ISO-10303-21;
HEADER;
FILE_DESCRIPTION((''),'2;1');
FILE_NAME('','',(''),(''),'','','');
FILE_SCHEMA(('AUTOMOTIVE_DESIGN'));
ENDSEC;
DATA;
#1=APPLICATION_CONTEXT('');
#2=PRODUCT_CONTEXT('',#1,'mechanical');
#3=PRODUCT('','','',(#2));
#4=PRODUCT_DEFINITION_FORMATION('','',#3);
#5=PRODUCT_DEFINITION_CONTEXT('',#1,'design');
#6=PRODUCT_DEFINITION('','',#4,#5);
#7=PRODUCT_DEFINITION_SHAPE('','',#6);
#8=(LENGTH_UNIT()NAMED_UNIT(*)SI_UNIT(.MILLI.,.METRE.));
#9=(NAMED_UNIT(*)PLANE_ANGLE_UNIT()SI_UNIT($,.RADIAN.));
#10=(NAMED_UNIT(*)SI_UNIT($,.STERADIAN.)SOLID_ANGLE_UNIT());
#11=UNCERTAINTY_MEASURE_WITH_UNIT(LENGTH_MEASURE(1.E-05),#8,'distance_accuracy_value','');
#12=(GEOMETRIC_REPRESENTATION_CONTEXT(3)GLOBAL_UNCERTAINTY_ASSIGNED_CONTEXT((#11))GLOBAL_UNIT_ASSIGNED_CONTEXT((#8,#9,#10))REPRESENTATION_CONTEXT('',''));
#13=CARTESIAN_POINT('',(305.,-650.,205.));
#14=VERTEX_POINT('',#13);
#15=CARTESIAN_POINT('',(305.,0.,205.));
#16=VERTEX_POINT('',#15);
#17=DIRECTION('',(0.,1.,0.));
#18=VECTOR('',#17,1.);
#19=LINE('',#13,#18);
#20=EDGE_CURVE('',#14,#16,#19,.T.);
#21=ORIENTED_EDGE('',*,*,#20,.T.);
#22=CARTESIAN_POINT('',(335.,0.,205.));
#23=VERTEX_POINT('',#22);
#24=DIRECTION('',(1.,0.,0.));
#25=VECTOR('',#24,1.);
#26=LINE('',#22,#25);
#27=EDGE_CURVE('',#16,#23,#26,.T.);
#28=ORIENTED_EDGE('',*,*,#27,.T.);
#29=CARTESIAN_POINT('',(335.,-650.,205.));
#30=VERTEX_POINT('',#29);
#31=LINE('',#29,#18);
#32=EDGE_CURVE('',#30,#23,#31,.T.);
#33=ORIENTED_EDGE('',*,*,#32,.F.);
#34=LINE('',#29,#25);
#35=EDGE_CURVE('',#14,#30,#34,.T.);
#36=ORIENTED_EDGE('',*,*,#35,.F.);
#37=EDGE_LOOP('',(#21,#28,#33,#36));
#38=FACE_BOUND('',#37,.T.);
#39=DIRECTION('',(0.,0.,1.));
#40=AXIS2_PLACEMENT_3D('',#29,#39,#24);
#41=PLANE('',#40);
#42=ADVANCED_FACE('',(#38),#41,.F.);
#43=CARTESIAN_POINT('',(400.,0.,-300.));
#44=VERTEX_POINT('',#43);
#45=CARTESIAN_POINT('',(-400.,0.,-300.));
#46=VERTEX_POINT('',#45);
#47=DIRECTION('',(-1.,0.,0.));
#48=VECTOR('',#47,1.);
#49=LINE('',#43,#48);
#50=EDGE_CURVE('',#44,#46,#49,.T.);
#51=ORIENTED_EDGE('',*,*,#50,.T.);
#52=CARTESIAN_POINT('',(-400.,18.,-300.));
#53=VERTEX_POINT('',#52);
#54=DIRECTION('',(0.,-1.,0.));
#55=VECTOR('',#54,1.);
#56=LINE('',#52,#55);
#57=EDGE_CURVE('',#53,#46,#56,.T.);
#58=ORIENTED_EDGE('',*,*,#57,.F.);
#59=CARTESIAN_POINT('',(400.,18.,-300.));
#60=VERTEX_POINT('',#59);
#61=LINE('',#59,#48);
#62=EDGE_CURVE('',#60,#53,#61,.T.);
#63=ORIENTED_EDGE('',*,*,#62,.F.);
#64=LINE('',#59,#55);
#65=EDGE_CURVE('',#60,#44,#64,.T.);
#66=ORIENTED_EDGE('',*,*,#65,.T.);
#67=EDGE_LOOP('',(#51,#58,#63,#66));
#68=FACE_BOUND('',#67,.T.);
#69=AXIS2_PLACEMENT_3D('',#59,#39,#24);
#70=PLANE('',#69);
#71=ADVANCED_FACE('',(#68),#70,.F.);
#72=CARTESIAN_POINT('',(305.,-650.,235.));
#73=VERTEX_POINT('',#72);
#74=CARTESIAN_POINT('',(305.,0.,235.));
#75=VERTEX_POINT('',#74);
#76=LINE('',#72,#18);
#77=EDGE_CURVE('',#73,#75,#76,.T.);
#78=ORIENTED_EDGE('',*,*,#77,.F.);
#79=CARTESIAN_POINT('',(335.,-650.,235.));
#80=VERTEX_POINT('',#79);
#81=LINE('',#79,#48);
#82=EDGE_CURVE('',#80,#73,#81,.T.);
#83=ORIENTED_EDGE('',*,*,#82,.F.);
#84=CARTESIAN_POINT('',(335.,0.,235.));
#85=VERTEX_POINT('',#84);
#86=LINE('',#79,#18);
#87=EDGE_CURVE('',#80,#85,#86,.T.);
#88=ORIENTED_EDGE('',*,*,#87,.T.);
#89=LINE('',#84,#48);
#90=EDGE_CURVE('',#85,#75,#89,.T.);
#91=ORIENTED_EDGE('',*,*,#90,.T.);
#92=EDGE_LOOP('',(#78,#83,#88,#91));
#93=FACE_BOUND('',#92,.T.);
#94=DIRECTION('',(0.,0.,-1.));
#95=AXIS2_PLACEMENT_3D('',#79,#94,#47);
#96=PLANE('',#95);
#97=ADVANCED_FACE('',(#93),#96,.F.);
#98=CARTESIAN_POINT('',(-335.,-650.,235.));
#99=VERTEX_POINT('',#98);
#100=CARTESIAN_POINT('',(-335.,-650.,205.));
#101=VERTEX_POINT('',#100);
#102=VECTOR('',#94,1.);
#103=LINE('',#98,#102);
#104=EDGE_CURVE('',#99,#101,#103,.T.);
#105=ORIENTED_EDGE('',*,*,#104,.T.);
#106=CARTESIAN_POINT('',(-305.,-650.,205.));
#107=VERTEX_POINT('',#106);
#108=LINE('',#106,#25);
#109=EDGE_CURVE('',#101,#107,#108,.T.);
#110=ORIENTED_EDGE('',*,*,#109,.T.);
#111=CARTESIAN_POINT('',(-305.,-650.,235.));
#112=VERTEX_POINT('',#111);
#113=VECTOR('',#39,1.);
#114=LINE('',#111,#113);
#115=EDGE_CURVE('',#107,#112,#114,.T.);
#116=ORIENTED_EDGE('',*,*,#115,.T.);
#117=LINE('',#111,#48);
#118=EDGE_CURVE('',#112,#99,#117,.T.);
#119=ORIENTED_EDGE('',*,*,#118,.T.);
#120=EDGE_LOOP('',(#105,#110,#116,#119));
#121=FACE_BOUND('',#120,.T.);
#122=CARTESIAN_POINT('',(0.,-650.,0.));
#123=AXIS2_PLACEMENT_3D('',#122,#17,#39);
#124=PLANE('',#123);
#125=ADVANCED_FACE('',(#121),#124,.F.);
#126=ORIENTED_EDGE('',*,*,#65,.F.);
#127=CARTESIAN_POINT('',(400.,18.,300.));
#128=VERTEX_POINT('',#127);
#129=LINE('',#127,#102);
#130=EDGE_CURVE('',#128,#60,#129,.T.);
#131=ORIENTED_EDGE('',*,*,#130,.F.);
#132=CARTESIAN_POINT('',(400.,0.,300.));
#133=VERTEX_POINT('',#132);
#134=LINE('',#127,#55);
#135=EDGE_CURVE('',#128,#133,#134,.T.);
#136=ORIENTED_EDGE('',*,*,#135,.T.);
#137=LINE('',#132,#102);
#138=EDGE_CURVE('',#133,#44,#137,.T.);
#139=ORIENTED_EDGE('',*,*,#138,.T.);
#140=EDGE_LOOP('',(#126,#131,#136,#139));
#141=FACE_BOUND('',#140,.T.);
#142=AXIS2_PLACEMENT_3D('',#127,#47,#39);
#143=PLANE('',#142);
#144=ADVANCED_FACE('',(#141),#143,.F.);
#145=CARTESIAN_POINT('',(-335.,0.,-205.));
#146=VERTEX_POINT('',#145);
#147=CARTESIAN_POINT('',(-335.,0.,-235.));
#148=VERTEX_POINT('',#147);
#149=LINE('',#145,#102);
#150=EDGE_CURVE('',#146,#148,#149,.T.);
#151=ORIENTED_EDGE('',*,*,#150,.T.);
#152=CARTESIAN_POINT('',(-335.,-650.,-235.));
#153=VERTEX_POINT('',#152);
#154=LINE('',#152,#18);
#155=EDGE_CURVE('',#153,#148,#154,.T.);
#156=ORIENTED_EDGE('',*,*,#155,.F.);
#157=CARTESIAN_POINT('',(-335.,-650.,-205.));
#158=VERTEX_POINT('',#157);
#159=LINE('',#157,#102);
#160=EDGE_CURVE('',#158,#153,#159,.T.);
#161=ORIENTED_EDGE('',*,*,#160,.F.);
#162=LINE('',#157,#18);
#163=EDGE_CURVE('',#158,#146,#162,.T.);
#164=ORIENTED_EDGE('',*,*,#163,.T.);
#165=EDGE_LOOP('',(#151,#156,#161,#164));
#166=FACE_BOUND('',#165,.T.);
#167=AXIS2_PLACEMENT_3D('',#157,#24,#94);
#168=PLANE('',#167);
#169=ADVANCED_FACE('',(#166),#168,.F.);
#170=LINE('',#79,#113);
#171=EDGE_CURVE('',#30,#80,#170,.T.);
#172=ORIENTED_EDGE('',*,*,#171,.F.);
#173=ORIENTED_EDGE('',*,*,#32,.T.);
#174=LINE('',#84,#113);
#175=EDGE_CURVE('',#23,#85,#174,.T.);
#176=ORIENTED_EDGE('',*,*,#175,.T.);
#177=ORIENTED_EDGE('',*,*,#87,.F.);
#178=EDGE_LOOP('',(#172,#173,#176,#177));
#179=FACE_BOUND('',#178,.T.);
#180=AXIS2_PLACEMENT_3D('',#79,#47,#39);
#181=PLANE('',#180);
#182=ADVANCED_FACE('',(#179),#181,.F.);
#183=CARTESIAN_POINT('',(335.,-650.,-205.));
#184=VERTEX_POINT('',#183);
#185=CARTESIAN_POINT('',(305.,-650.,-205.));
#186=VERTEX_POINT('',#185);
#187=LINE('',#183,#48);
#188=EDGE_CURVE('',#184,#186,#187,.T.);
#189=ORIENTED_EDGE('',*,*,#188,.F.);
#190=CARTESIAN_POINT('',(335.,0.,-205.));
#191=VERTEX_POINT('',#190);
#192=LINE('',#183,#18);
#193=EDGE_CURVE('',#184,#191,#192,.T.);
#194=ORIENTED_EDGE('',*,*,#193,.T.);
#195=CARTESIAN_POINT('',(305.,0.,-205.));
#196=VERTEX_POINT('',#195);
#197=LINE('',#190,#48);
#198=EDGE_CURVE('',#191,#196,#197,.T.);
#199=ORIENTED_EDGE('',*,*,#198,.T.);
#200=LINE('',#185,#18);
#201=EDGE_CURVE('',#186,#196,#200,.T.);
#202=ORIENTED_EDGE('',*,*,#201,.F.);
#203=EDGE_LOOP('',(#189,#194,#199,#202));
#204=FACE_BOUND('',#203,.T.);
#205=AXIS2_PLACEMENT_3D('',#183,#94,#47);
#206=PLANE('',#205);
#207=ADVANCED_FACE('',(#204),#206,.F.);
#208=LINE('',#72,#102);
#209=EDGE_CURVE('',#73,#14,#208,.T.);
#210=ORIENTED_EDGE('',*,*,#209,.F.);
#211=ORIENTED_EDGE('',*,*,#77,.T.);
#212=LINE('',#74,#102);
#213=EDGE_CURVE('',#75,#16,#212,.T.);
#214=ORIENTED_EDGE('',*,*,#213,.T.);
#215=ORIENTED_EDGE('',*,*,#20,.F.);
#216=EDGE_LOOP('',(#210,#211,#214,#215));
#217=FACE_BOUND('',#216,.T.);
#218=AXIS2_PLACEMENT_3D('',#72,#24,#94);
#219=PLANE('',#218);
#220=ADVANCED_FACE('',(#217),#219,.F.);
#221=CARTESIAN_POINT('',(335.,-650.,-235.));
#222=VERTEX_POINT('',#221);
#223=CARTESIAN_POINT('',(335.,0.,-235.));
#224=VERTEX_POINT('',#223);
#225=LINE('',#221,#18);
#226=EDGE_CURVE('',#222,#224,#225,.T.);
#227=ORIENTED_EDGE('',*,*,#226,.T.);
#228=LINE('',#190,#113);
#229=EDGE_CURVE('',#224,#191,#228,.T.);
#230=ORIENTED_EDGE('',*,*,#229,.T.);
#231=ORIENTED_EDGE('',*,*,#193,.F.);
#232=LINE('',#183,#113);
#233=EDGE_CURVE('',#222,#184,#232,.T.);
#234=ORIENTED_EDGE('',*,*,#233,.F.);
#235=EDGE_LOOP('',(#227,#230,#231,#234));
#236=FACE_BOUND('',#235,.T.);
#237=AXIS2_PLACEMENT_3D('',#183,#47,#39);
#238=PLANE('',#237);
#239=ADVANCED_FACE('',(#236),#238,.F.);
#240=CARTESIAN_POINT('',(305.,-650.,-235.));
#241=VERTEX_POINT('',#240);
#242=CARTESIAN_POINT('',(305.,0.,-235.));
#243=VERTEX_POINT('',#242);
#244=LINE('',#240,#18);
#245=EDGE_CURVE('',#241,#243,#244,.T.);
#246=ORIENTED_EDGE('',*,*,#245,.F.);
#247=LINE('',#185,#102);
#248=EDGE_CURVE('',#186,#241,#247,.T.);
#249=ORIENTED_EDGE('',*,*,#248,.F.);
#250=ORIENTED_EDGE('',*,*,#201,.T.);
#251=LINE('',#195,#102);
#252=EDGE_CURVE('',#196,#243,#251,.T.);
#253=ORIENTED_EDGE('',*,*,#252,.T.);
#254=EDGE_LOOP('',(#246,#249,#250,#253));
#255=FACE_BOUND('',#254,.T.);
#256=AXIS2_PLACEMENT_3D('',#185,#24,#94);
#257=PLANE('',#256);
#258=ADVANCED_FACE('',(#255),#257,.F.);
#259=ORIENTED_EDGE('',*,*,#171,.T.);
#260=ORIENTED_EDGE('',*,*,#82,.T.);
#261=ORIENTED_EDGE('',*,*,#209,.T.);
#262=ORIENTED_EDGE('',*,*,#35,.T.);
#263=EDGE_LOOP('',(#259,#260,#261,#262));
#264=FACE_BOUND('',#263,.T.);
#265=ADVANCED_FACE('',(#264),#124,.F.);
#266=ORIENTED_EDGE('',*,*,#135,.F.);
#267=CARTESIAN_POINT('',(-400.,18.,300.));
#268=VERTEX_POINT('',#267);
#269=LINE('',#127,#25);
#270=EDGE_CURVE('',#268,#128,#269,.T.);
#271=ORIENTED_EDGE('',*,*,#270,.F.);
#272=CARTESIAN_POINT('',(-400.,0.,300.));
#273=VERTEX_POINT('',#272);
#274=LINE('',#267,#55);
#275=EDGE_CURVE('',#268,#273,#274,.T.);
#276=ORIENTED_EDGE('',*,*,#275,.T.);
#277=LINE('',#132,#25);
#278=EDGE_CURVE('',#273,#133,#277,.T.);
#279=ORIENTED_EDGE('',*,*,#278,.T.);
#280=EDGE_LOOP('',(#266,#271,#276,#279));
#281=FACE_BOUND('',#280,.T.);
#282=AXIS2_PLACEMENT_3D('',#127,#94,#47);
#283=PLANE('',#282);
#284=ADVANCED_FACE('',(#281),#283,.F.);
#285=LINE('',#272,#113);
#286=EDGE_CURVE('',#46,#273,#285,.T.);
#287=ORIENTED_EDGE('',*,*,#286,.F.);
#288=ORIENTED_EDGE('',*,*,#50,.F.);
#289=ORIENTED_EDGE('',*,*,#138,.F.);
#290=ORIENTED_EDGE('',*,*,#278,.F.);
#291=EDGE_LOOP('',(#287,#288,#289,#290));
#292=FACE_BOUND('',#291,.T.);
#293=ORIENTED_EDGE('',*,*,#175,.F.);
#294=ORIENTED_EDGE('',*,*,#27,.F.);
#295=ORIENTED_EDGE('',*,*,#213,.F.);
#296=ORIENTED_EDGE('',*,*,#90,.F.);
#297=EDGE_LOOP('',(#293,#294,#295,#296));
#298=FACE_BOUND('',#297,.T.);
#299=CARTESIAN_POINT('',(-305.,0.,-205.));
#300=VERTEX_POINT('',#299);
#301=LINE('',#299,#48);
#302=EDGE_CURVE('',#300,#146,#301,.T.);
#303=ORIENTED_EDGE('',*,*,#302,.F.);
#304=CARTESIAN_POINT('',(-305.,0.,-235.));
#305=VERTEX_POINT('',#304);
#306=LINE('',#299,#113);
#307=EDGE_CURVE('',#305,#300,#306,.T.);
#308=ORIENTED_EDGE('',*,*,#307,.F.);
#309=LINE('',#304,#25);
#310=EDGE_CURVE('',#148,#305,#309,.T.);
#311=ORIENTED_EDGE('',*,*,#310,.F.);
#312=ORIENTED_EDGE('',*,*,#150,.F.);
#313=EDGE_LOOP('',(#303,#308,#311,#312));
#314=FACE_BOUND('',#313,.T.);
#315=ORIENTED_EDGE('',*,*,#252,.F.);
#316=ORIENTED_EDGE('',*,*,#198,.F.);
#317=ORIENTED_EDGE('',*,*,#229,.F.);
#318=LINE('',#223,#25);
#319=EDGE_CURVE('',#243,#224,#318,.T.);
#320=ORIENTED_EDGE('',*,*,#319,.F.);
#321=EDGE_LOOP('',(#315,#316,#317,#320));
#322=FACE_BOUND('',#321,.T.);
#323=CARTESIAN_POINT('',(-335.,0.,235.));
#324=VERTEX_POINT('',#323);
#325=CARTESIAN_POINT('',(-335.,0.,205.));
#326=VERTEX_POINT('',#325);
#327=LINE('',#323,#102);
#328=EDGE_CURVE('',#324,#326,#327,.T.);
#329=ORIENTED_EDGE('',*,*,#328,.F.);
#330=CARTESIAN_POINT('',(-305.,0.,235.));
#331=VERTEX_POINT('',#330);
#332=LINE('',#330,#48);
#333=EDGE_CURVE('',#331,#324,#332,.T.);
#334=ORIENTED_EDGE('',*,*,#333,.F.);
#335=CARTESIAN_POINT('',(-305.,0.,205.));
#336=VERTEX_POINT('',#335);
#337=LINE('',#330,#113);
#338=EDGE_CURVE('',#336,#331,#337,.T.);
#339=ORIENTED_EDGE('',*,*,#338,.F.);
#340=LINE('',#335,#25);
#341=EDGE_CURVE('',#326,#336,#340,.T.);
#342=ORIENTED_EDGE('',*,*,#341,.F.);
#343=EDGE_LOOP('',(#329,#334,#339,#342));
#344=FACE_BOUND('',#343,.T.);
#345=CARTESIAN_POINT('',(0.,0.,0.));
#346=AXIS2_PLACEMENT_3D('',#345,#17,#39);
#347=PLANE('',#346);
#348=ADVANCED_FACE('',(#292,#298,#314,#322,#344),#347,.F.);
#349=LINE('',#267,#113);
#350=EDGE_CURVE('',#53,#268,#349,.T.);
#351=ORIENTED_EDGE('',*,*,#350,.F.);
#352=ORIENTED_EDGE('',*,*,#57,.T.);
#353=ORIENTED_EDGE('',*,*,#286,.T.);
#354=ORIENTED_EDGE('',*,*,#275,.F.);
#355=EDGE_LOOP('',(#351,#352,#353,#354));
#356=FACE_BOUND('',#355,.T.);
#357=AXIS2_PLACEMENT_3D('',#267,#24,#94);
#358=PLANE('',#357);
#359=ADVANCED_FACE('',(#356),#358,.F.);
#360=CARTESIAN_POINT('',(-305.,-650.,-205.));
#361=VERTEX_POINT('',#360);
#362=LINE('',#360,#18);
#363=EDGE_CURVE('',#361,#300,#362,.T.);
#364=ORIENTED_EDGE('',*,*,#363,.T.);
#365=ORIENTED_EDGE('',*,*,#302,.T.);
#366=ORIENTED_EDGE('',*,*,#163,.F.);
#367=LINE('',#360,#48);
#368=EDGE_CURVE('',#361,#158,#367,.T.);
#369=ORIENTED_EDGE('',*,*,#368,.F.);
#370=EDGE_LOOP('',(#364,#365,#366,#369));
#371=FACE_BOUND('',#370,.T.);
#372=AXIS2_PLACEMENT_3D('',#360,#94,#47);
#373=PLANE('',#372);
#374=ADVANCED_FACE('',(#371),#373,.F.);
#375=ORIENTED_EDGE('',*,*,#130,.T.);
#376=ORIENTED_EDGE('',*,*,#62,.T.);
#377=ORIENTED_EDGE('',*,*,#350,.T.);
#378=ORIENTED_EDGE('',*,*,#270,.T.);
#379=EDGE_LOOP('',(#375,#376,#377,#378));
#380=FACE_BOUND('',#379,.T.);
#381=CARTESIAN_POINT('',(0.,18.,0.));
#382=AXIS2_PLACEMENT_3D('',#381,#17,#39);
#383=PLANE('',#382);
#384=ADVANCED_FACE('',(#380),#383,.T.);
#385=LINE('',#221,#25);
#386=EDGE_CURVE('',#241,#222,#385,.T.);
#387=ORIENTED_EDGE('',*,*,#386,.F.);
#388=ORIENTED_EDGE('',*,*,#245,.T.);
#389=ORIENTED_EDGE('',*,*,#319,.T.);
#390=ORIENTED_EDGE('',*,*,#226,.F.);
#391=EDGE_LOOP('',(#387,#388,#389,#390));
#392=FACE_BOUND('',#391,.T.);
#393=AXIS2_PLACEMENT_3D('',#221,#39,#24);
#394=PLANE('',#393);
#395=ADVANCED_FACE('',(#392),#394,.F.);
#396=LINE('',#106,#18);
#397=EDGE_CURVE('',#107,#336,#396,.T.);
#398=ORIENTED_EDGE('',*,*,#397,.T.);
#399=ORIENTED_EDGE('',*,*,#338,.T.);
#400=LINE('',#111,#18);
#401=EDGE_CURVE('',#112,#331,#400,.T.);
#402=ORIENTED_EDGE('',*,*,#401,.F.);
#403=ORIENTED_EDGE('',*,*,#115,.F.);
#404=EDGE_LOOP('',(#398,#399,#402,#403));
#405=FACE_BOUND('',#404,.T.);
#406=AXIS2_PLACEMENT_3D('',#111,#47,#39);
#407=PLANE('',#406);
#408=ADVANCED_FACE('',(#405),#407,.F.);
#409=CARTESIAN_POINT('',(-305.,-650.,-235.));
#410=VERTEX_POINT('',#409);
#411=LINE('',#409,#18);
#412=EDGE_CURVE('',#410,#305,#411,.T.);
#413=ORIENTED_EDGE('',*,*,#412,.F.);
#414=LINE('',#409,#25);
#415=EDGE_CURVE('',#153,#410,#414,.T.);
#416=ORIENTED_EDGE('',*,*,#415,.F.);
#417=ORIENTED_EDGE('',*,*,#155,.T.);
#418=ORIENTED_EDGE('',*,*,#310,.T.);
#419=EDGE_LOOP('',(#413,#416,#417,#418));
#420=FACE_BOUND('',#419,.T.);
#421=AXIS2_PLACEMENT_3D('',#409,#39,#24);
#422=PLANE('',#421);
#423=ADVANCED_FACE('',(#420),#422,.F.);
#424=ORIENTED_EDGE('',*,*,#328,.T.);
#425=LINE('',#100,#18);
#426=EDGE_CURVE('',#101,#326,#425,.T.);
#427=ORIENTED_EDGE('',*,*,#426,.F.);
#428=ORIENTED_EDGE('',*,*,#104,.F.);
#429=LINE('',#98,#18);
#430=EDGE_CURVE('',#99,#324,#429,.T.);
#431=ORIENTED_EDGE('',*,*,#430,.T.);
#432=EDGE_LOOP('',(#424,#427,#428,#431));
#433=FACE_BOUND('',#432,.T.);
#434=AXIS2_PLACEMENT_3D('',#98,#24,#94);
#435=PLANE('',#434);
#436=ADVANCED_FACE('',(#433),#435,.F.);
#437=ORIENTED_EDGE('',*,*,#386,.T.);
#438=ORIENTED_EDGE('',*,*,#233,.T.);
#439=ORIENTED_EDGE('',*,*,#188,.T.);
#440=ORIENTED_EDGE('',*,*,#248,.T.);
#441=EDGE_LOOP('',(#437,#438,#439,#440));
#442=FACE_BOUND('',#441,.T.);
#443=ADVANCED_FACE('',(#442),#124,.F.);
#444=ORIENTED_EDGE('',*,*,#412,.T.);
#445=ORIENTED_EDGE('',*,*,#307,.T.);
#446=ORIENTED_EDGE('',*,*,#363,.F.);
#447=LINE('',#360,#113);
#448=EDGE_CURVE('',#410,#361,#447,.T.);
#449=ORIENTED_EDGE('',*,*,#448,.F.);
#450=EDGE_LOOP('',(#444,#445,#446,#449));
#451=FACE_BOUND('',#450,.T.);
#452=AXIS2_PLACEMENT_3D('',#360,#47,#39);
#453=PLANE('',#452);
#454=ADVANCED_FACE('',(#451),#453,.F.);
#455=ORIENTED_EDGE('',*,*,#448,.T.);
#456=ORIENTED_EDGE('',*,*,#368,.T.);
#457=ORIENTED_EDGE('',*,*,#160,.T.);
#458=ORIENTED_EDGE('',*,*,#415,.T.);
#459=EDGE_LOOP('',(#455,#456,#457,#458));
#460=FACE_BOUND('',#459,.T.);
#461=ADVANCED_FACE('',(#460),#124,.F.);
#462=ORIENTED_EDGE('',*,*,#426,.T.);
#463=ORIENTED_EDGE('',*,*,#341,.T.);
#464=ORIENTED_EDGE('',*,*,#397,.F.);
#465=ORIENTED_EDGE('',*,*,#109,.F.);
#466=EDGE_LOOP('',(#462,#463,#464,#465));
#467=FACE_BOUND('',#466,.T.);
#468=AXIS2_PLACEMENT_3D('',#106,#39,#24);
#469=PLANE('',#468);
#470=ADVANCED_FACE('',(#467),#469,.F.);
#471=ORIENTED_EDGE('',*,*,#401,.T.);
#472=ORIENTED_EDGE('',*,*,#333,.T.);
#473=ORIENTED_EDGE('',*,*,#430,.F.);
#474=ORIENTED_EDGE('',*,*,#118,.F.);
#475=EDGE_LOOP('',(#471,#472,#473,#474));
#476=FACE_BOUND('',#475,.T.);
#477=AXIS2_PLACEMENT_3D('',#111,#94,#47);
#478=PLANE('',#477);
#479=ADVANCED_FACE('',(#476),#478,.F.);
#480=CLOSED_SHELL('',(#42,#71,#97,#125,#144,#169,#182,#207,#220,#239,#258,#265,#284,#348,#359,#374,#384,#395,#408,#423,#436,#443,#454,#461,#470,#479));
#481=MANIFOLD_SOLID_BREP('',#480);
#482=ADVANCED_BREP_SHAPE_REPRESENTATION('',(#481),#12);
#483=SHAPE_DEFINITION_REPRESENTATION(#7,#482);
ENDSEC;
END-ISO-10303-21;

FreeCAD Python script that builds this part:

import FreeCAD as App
import Part
import Sketcher
from FreeCAD import Vector
Q = App.Units.Quantity


def add_polygon(sketch, points):
    """Adds a closed chain of lines whose ends are joined by coincident constraints."""
    first, n = sketch.GeometryCount, len(points)
    for a, b in zip(points, points[1:] + points[:1]):
        sketch.addGeometry(Part.LineSegment(App.Vector(*a, 0), App.Vector(*b, 0)), False)
    for i in range(n):
        sketch.addConstraint(Sketcher.Constraint("Coincident", first + i, 2, first + (i + 1) % n, 1))

doc = App.newDocument("Part")
body = doc.addObject("PartDesign::Body", "Body")

# Sketch on XZ plane
sketch1 = body.newObject("Sketcher::SketchObject", "Sketch")
sketch1.AttachmentSupport = (doc.getObject("XZ_Plane"), [""])
sketch1.MapMode = "FlatFace"
add_polygon(sketch1, [(-400, -300), (-400, 300), (400, 300), (400, -300)])  # lines 0-3
sketch1.addConstraint(Sketcher.Constraint("Vertical", 0))
sketch1.addConstraint(Sketcher.Constraint("Horizontal", 1))
sketch1.addConstraint(Sketcher.Constraint("Vertical", 2))
sketch1.addConstraint(Sketcher.Constraint("Horizontal", 3))
sketch1.addConstraint(Sketcher.Constraint("Symmetric", 0, 2, 2, 2, -1, 1))
sketch1.addConstraint(Sketcher.Constraint("DistanceX", 1, 1, 1, 2, Q("800 mm")))
sketch1.addConstraint(Sketcher.Constraint("DistanceY", 0, 1, 0, 2, Q("600 mm")))
pad1 = body.newObject("PartDesign::Pad", "Pad")
pad1.Profile = sketch1
pad1.Length = 18
pad1.Reversed = True

# Sketch on XZ plane
sketch2 = body.newObject("Sketcher::SketchObject", "Sketch001")
sketch2.AttachmentSupport = (doc.getObject("XZ_Plane"), [""])
sketch2.MapMode = "FlatFace"
add_polygon(sketch2, [(-335, 235), (-335, 205), (-305, 205), (-305, 235)])  # lines 0-3
add_polygon(sketch2, [(305, 235), (305, 205), (335, 205), (335, 235)])  # lines 4-7
add_polygon(sketch2, [(305, -205), (305, -235), (335, -235), (335, -205)])  # lines 8-11
add_polygon(sketch2, [(-335, -205), (-335, -235), (-305, -235), (-305, -205)])  # lines 12-15
sketch2.addConstraint(Sketcher.Constraint("Vertical", 0))
sketch2.addConstraint(Sketcher.Constraint("Horizontal", 1))
sketch2.addConstraint(Sketcher.Constraint("Vertical", 2))
sketch2.addConstraint(Sketcher.Constraint("Horizontal", 3))
sketch2.addConstraint(Sketcher.Constraint("Vertical", 4))
sketch2.addConstraint(Sketcher.Constraint("Horizontal", 5))
sketch2.addConstraint(Sketcher.Constraint("Vertical", 6))
sketch2.addConstraint(Sketcher.Constraint("Horizontal", 7))
sketch2.addConstraint(Sketcher.Constraint("Vertical", 8))
sketch2.addConstraint(Sketcher.Constraint("Horizontal", 9))
sketch2.addConstraint(Sketcher.Constraint("Vertical", 10))
sketch2.addConstraint(Sketcher.Constraint("Horizontal", 11))
sketch2.addConstraint(Sketcher.Constraint("Vertical", 12))
sketch2.addConstraint(Sketcher.Constraint("Horizontal", 13))
sketch2.addConstraint(Sketcher.Constraint("Vertical", 14))
sketch2.addConstraint(Sketcher.Constraint("Horizontal", 15))
sketch2.addConstraint(Sketcher.Constraint("Symmetric", 2, 2, 8, 2, -1, 1))
sketch2.addConstraint(Sketcher.Constraint("Symmetric", 0, 2, 10, 2, -1, 1))
sketch2.addConstraint(Sketcher.Constraint("Symmetric", 6, 2, 12, 2, -1, 1))
sketch2.addConstraint(Sketcher.Constraint("Symmetric", 4, 2, 14, 2, -1, 1))
sketch2.addConstraint(Sketcher.Constraint("Symmetric", 1, 2, 4, 2, -2))
sketch2.addConstraint(Sketcher.Constraint("Symmetric", 3, 2, 6, 2, -2))
sketch2.addConstraint(Sketcher.Constraint("Equal", 15, 0))
sketch2.addConstraint(Sketcher.Constraint("DistanceX", 1, 1, 1, 2, Q("30 mm")))
sketch2.addConstraint(Sketcher.Constraint("DistanceX", 0, 2, -1, 1, Q("335 mm")))
sketch2.addConstraint(Sketcher.Constraint("DistanceY", -1, 1, 0, 2, Q("205 mm")))
pad2 = body.newObject("PartDesign::Pad", "Pad001")
pad2.Profile = sketch2
pad2.Length = 650

doc.recompute()
